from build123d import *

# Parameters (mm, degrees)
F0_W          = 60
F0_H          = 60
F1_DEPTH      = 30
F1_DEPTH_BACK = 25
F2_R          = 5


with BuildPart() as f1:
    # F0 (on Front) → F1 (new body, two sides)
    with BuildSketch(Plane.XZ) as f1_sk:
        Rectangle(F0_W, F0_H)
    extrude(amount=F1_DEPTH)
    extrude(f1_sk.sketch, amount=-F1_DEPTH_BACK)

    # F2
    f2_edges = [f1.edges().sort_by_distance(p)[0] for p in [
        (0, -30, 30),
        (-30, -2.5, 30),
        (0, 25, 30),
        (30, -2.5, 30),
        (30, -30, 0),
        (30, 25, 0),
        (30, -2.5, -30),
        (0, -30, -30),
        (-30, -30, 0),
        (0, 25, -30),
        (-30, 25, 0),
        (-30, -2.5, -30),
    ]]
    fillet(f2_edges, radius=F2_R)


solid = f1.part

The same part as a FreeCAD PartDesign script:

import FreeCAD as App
import Part
import Sketcher
from FreeCAD import Vector


def add_polygon(sketch, points):
    """Adds a closed chain of lines whose ends are joined by coincident constraints."""
    first, n = sketch.GeometryCount, len(points)
    for a, b in zip(points, points[1:] + points[:1]):
        sketch.addGeometry(Part.LineSegment(App.Vector(*a, 0), App.Vector(*b, 0)), False)
    for i in range(n):
        sketch.addConstraint(Sketcher.Constraint("Coincident", first + i, 2, first + (i + 1) % n, 1))

doc = App.newDocument("Part")
body = doc.addObject("PartDesign::Body", "Body")

# Sketch on XZ plane
sketch1 = doc.addObject("Sketcher::SketchObject", "Sketch")
body.addObject(sketch1)
sketch1.AttachmentSupport = (doc.XZ_Plane, [""])
sketch1.MapMode = "FlatFace"
add_polygon(sketch1, [(-30, 30), (-30, -30), (30, -30), (30, 30)])  # lines 0-3
sketch1.addConstraint(Sketcher.Constraint("Vertical", 0))
sketch1.addConstraint(Sketcher.Constraint("Horizontal", 1))
sketch1.addConstraint(Sketcher.Constraint("Vertical", 2))
sketch1.addConstraint(Sketcher.Constraint("Horizontal", 3))
sketch1.addConstraint(Sketcher.Constraint("Symmetric", 0, 2, 2, 2, -1, 1))
sketch1.addConstraint(Sketcher.Constraint("Equal", 3, 0))
sketch1.addConstraint(Sketcher.Constraint("DistanceX", 1, 1, 1, 2, 60.0))
pad1 = doc.addObject("PartDesign::Pad", "Pad")
body.addObject(pad1)
pad1.Profile = sketch1
pad1.Type = "TwoLengths"
pad1.Length = 30
pad1.Length2 = 25
doc.recompute()

fillet = doc.addObject("PartDesign::Fillet", "Fillet")
body.addObject(fillet)
fillet.Base = (pad1, ["Edge1"])
fillet.UseAllEdges = True
fillet.Radius = 5

doc.recompute()
